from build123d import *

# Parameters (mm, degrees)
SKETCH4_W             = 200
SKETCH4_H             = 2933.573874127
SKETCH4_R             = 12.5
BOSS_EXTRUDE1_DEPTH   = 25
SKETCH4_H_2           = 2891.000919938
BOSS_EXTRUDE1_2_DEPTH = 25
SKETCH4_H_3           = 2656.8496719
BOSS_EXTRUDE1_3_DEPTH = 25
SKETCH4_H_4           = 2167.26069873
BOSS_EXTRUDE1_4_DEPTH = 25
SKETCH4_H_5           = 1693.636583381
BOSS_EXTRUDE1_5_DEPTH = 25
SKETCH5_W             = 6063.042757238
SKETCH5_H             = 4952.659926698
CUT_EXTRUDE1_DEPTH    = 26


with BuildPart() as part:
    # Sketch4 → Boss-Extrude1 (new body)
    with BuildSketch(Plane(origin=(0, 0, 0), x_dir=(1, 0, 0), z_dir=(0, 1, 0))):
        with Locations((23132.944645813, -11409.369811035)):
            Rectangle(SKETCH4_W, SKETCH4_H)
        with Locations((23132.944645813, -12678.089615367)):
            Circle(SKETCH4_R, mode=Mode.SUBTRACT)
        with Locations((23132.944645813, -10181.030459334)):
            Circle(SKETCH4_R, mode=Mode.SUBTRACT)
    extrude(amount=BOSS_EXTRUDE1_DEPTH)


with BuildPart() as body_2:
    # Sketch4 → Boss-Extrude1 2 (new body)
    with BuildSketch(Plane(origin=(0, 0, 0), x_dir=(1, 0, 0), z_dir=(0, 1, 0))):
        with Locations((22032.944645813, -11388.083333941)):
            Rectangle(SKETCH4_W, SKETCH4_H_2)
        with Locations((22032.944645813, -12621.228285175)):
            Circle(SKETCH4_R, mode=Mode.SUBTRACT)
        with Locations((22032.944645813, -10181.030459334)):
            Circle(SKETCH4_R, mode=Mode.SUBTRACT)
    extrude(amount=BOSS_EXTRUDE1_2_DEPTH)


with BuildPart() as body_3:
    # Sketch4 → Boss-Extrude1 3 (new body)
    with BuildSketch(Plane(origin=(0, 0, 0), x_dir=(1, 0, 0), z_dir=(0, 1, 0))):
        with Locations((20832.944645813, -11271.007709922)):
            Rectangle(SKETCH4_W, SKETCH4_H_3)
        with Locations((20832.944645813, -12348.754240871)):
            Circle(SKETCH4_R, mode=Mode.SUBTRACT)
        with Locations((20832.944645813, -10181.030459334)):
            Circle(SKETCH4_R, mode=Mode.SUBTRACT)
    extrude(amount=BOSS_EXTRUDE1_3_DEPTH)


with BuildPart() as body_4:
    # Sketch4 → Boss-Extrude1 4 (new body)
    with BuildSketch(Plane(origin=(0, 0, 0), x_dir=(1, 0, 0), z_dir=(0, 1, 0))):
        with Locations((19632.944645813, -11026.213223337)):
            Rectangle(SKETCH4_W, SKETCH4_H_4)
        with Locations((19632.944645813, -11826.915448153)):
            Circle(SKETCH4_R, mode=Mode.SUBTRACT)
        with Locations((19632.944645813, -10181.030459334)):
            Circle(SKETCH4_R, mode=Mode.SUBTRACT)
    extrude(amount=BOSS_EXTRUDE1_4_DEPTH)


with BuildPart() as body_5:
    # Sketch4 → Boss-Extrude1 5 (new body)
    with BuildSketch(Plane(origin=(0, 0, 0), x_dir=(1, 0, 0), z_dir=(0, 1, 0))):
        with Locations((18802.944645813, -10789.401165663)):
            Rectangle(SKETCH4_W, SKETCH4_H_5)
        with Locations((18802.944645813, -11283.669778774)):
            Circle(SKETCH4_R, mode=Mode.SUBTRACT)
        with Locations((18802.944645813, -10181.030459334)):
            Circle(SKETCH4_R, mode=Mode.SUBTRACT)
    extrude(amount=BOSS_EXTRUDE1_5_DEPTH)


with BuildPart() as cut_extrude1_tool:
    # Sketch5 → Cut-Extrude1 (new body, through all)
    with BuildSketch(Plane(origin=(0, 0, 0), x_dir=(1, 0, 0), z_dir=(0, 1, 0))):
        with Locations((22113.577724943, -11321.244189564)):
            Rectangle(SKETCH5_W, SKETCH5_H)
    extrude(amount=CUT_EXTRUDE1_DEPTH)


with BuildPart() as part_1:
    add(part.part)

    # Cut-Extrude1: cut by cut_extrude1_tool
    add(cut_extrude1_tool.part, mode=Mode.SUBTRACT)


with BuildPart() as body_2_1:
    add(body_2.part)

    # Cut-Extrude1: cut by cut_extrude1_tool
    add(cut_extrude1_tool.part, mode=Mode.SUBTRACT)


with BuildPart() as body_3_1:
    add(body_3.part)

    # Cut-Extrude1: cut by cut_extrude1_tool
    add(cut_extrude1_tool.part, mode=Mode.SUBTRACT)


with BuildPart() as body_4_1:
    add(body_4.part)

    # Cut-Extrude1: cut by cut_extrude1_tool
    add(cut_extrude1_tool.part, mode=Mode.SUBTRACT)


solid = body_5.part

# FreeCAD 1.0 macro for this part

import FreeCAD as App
import Part
import Sketcher


def add_polygon(sketch, points):
    """Adds a closed chain of lines whose ends are joined by coincident constraints."""
    first, n = sketch.GeometryCount, len(points)
    for a, b in zip(points, points[1:] + points[:1]):
        sketch.addGeometry(Part.LineSegment(App.Vector(*a, 0), App.Vector(*b, 0)), False)
    for i in range(n):
        sketch.addConstraint(Sketcher.Constraint("Coincident", first + i, 2, first + (i + 1) % n, 1))

doc = App.newDocument("Part")
body = doc.addObject("PartDesign::Body", "Body")

# Sketch on XZ plane
sketch1 = body.newObject("Sketcher::SketchObject", "Sketch")
sketch1.AttachmentSupport = (doc.getObject("XZ_Plane"), [""])
sketch1.MapMode = "FlatFace"
add_polygon(sketch1, [(23033, 9943), (23033, 12876), (23233, 12876), (23233, 9943)])  # lines 0-3
sketch1.addGeometry(Part.Circle(App.Vector(23133, 12678, 0), App.Vector(0, 0, 1), 12), False)  # 4
sketch1.addGeometry(Part.Circle(App.Vector(23133, 10181, 0), App.Vector(0, 0, 1), 12), False)  # 5
sketch1.addConstraint(Sketcher.Constraint("Vertical", 0))
sketch1.addConstraint(Sketcher.Constraint("Horizontal", 1))
sketch1.addConstraint(Sketcher.Constraint("Vertical", 2))
sketch1.addConstraint(Sketcher.Constraint("Horizontal", 3))
sketch1.addConstraint(Sketcher.Constraint("Equal", 4, 5))
sketch1.addConstraint(Sketcher.Constraint("Vertical", 4, 3, 5, 3))
sketch1.addConstraint(Sketcher.Constraint("Diameter", 4, 25.0))
sketch1.addConstraint(Sketcher.Constraint("DistanceX", 1, 1, 1, 2, 200.0))
sketch1.addConstraint(Sketcher.Constraint("DistanceX", 0, 2, 4, 3, 100.0))
sketch1.addConstraint(Sketcher.Constraint("DistanceY", 0, 1, 0, 2, 2933.573874))
sketch1.addConstraint(Sketcher.Constraint("DistanceY", -1, 1, 5, 3, 10181.030459))
sketch1.addConstraint(Sketcher.Constraint("DistanceY", -1, 1, 0, 2, 12876.156748))
sketch1.addConstraint(Sketcher.Constraint("DistanceY", 2, 2, 4, 3, 2735.506741))
sketch1.addConstraint(Sketcher.Constraint("DistanceX", -1, 1, 4, 3, 23132.944646))
pad1 = body.newObject("PartDesign::Pad", "Pad")
pad1.Profile = sketch1
pad1.Length = 25
pad1.Reversed = True
body2 = doc.addObject("PartDesign::Body", "Body001")

# Sketch on XZ plane
sketch2 = body2.newObject("Sketcher::SketchObject", "Sketch001")
sketch2.AttachmentSupport = (doc.getObject("XZ_Plane001"), [""])
sketch2.MapMode = "FlatFace"
add_polygon(sketch2, [(21933, 9943), (21933, 12834), (22133, 12834), (22133, 9943)])  # lines 0-3
sketch2.addGeometry(Part.Circle(App.Vector(22033, 12621, 0), App.Vector(0, 0, 1), 12), False)  # 4
sketch2.addGeometry(Part.Circle(App.Vector(22033, 10181, 0), App.Vector(0, 0, 1), 12), False)  # 5
sketch2.addConstraint(Sketcher.Constraint("Vertical", 0))
sketch2.addConstraint(Sketcher.Constraint("Horizontal", 1))
sketch2.addConstraint(Sketcher.Constraint("Vertical", 2))
sketch2.addConstraint(Sketcher.Constraint("Horizontal", 3))
sketch2.addConstraint(Sketcher.Constraint("Equal", 4, 5))
sketch2.addConstraint(Sketcher.Constraint("Vertical", 4, 3, 5, 3))
sketch2.addConstraint(Sketcher.Constraint("Diameter", 4, 25.0))
sketch2.addConstraint(Sketcher.Constraint("DistanceX", 1, 1, 1, 2, 200.0))
sketch2.addConstraint(Sketcher.Constraint("DistanceX", 0, 2, 4, 3, 100.0))
sketch2.addConstraint(Sketcher.Constraint("DistanceY", 0, 1, 0, 2, 2891.00092))
sketch2.addConstraint(Sketcher.Constraint("DistanceY", -1, 1, 5, 3, 10181.030459))
sketch2.addConstraint(Sketcher.Constraint("DistanceY", 4, 3, 0, 2, 212.355509))
sketch2.addConstraint(Sketcher.Constraint("DistanceX", -1, 1, 4, 3, 22032.944646))
sketch2.addConstraint(Sketcher.Constraint("DistanceY", -1, 1, 4, 3, 12621.228285))
pad2 = body2.newObject("PartDesign::Pad", "Pad001")
pad2.Profile = sketch2
pad2.Length = 25
pad2.Reversed = True
body3 = doc.addObject("PartDesign::Body", "Body002")

# Sketch on XZ plane
sketch3 = body3.newObject("Sketcher::SketchObject", "Sketch002")
sketch3.AttachmentSupport = (doc.getObject("XZ_Plane002"), [""])
sketch3.MapMode = "FlatFace"
add_polygon(sketch3, [(20733, 9943), (20733, 12599), (20933, 12599), (20933, 9943)])  # lines 0-3
sketch3.addGeometry(Part.Circle(App.Vector(20833, 12349, 0), App.Vector(0, 0, 1), 12), False)  # 4
sketch3.addGeometry(Part.Circle(App.Vector(20833, 10181, 0), App.Vector(0, 0, 1), 12), False)  # 5
sketch3.addConstraint(Sketcher.Constraint("Vertical", 0))
sketch3.addConstraint(Sketcher.Constraint("Horizontal", 1))
sketch3.addConstraint(Sketcher.Constraint("Vertical", 2))
sketch3.addConstraint(Sketcher.Constraint("Horizontal", 3))
sketch3.addConstraint(Sketcher.Constraint("Equal", 4, 5))
sketch3.addConstraint(Sketcher.Constraint("Vertical", 4, 3, 5, 3))
sketch3.addConstraint(Sketcher.Constraint("Diameter", 4, 25.0))
sketch3.addConstraint(Sketcher.Constraint("DistanceX", 1, 1, 1, 2, 200.0))
sketch3.addConstraint(Sketcher.Constraint("DistanceX", 0, 2, 4, 3, 100.0))
sketch3.addConstraint(Sketcher.Constraint("DistanceY", 0, 1, 0, 2, 2656.849672))
sketch3.addConstraint(Sketcher.Constraint("DistanceY", -1, 1, 4, 3, 12348.754241))
sketch3.addConstraint(Sketcher.Constraint("DistanceY", -1, 1, 5, 3, 10181.030459))
sketch3.addConstraint(Sketcher.Constraint("DistanceX", -1, 1, 4, 3, 20832.944646))
sketch3.addConstraint(Sketcher.Constraint("DistanceY", -1, 1, 0, 2, 12599.432546))
pad3 = body3.newObject("PartDesign::Pad", "Pad002")
pad3.Profile = sketch3
pad3.Length = 25
pad3.Reversed = True
body4 = doc.addObject("PartDesign::Body", "Body003")

# Sketch on XZ plane
sketch4 = body4.newObject("Sketcher::SketchObject", "Sketch003")
sketch4.AttachmentSupport = (doc.getObject("XZ_Plane003"), [""])
sketch4.MapMode = "FlatFace"
add_polygon(sketch4, [(19533, 9943), (19533, 12110), (19733, 12110), (19733, 9943)])  # lines 0-3
sketch4.addGeometry(Part.Circle(App.Vector(19633, 11827, 0), App.Vector(0, 0, 1), 12), False)  # 4
sketch4.addGeometry(Part.Circle(App.Vector(19633, 10181, 0), App.Vector(0, 0, 1), 12), False)  # 5
sketch4.addConstraint(Sketcher.Constraint("Vertical", 0))
sketch4.addConstraint(Sketcher.Constraint("Horizontal", 1))
sketch4.addConstraint(Sketcher.Constraint("Vertical", 2))
sketch4.addConstraint(Sketcher.Constraint("Horizontal", 3))
sketch4.addConstraint(Sketcher.Constraint("Equal", 4, 5))
sketch4.addConstraint(Sketcher.Constraint("Vertical", 4, 3, 5, 3))
sketch4.addConstraint(Sketcher.Constraint("Diameter", 4, 25.0))
sketch4.addConstraint(Sketcher.Constraint("DistanceX", 1, 1, 1, 2, 200.0))
sketch4.addConstraint(Sketcher.Constraint("DistanceX", 0, 2, 4, 3, 100.0))
sketch4.addConstraint(Sketcher.Constraint("DistanceY", 0, 1, 0, 2, 2167.260699))
sketch4.addConstraint(Sketcher.Constraint("DistanceY", -1, 1, 4, 3, 11826.915448))
sketch4.addConstraint(Sketcher.Constraint("DistanceY", -1, 1, 5, 3, 10181.030459))
sketch4.addConstraint(Sketcher.Constraint("DistanceX", -1, 1, 4, 3, 19632.944646))
sketch4.addConstraint(Sketcher.Constraint("DistanceY", -1, 1, 0, 2, 12109.843573))
pad4 = body4.newObject("PartDesign::Pad", "Pad003")
pad4.Profile = sketch4
pad4.Length = 25
pad4.Reversed = True
body5 = doc.addObject("PartDesign::Body", "Body004")

# Sketch on XZ plane
sketch5 = body5.newObject("Sketcher::SketchObject", "Sketch004")
sketch5.AttachmentSupport = (doc.getObject("XZ_Plane004"), [""])
sketch5.MapMode = "FlatFace"
add_polygon(sketch5, [(18703, 9943), (18703, 11636), (18903, 11636), (18903, 9943)])  # lines 0-3
sketch5.addGeometry(Part.Circle(App.Vector(18803, 11284, 0), App.Vector(0, 0, 1), 12), False)  # 4
sketch5.addGeometry(Part.Circle(App.Vector(18803, 10181, 0), App.Vector(0, 0, 1), 12), False)  # 5
sketch5.addConstraint(Sketcher.Constraint("Vertical", 0))
sketch5.addConstraint(Sketcher.Constraint("Horizontal", 1))
sketch5.addConstraint(Sketcher.Constraint("Vertical", 2))
sketch5.addConstraint(Sketcher.Constraint("Horizontal", 3))
sketch5.addConstraint(Sketcher.Constraint("Equal", 4, 5))
sketch5.addConstraint(Sketcher.Constraint("Vertical", 4, 3, 5, 3))
sketch5.addConstraint(Sketcher.Constraint("Diameter", 4, 25.0))
sketch5.addConstraint(Sketcher.Constraint("DistanceX", 1, 1, 1, 2, 200.0))
sketch5.addConstraint(Sketcher.Constraint("DistanceX", 0, 2, 4, 3, 100.0))
sketch5.addConstraint(Sketcher.Constraint("DistanceY", 5, 3, 0, 2, 1455.188998))
sketch5.addConstraint(Sketcher.Constraint("DistanceY", 0, 1, 0, 2, 1693.636583))
sketch5.addConstraint(Sketcher.Constraint("DistanceY", -1, 1, 4, 3, 11283.669779))
sketch5.addConstraint(Sketcher.Constraint("DistanceY", -1, 1, 5, 3, 10181.030459))
sketch5.addConstraint(Sketcher.Constraint("DistanceX", -1, 1, 4, 3, 18802.944646))
pad5 = body5.newObject("PartDesign::Pad", "Pad004")
pad5.Profile = sketch5
pad5.Length = 25
pad5.Reversed = True
body6 = doc.addObject("PartDesign::Body", "Body005")

# Sketch on XZ plane
sketch6 = body6.newObject("Sketcher::SketchObject", "Sketch005")
sketch6.AttachmentSupport = (doc.getObject("XZ_Plane005"), [""])
sketch6.MapMode = "FlatFace"
add_polygon(sketch6, [(19082, 8845), (19082, 13798), (25145, 13798), (25145, 8845)])  # lines 0-3
sketch6.addConstraint(Sketcher.Constraint("Vertical", 0))
sketch6.addConstraint(Sketcher.Constraint("Horizontal", 1))
sketch6.addConstraint(Sketcher.Constraint("Vertical", 2))
sketch6.addConstraint(Sketcher.Constraint("Horizontal", 3))
sketch6.addConstraint(Sketcher.Constraint("DistanceX", 1, 1, 1, 2, 6063.042757))
sketch6.addConstraint(Sketcher.Constraint("DistanceY", 0, 1, 0, 2, 4952.659927))
sketch6.addConstraint(Sketcher.Constraint("DistanceX", -1, 1, 0, 2, 19082.056346))
sketch6.addConstraint(Sketcher.Constraint("DistanceY", -1, 1, 0, 2, 13797.574153))
pad6 = body6.newObject("PartDesign::Pad", "Pad005")
pad6.Profile = sketch6
pad6.Length = 26
pad6.Reversed = True
doc.recompute()

body7 = doc.addObject("PartDesign::Body", "Body006")
body7.BaseFeature = body6
boolean = body.newObject("PartDesign::Boolean", "Boolean")
boolean.Type = "Cut"
boolean.addObjects([body7])
doc.recompute()

body8 = doc.addObject("PartDesign::Body", "Body007")
body8.BaseFeature = body6
boolean2 = body2.newObject("PartDesign::Boolean", "Boolean001")
boolean2.Type = "Cut"
boolean2.addObjects([body8])
doc.recompute()

body9 = doc.addObject("PartDesign::Body", "Body008")
body9.BaseFeature = body6
boolean3 = body3.newObject("PartDesign::Boolean", "Boolean002")
boolean3.Type = "Cut"
boolean3.addObjects([body9])
doc.recompute()

boolean4 = body4.newObject("PartDesign::Boolean", "Boolean003")
boolean4.Type = "Cut"
boolean4.addObjects([body6])

doc.recompute()
